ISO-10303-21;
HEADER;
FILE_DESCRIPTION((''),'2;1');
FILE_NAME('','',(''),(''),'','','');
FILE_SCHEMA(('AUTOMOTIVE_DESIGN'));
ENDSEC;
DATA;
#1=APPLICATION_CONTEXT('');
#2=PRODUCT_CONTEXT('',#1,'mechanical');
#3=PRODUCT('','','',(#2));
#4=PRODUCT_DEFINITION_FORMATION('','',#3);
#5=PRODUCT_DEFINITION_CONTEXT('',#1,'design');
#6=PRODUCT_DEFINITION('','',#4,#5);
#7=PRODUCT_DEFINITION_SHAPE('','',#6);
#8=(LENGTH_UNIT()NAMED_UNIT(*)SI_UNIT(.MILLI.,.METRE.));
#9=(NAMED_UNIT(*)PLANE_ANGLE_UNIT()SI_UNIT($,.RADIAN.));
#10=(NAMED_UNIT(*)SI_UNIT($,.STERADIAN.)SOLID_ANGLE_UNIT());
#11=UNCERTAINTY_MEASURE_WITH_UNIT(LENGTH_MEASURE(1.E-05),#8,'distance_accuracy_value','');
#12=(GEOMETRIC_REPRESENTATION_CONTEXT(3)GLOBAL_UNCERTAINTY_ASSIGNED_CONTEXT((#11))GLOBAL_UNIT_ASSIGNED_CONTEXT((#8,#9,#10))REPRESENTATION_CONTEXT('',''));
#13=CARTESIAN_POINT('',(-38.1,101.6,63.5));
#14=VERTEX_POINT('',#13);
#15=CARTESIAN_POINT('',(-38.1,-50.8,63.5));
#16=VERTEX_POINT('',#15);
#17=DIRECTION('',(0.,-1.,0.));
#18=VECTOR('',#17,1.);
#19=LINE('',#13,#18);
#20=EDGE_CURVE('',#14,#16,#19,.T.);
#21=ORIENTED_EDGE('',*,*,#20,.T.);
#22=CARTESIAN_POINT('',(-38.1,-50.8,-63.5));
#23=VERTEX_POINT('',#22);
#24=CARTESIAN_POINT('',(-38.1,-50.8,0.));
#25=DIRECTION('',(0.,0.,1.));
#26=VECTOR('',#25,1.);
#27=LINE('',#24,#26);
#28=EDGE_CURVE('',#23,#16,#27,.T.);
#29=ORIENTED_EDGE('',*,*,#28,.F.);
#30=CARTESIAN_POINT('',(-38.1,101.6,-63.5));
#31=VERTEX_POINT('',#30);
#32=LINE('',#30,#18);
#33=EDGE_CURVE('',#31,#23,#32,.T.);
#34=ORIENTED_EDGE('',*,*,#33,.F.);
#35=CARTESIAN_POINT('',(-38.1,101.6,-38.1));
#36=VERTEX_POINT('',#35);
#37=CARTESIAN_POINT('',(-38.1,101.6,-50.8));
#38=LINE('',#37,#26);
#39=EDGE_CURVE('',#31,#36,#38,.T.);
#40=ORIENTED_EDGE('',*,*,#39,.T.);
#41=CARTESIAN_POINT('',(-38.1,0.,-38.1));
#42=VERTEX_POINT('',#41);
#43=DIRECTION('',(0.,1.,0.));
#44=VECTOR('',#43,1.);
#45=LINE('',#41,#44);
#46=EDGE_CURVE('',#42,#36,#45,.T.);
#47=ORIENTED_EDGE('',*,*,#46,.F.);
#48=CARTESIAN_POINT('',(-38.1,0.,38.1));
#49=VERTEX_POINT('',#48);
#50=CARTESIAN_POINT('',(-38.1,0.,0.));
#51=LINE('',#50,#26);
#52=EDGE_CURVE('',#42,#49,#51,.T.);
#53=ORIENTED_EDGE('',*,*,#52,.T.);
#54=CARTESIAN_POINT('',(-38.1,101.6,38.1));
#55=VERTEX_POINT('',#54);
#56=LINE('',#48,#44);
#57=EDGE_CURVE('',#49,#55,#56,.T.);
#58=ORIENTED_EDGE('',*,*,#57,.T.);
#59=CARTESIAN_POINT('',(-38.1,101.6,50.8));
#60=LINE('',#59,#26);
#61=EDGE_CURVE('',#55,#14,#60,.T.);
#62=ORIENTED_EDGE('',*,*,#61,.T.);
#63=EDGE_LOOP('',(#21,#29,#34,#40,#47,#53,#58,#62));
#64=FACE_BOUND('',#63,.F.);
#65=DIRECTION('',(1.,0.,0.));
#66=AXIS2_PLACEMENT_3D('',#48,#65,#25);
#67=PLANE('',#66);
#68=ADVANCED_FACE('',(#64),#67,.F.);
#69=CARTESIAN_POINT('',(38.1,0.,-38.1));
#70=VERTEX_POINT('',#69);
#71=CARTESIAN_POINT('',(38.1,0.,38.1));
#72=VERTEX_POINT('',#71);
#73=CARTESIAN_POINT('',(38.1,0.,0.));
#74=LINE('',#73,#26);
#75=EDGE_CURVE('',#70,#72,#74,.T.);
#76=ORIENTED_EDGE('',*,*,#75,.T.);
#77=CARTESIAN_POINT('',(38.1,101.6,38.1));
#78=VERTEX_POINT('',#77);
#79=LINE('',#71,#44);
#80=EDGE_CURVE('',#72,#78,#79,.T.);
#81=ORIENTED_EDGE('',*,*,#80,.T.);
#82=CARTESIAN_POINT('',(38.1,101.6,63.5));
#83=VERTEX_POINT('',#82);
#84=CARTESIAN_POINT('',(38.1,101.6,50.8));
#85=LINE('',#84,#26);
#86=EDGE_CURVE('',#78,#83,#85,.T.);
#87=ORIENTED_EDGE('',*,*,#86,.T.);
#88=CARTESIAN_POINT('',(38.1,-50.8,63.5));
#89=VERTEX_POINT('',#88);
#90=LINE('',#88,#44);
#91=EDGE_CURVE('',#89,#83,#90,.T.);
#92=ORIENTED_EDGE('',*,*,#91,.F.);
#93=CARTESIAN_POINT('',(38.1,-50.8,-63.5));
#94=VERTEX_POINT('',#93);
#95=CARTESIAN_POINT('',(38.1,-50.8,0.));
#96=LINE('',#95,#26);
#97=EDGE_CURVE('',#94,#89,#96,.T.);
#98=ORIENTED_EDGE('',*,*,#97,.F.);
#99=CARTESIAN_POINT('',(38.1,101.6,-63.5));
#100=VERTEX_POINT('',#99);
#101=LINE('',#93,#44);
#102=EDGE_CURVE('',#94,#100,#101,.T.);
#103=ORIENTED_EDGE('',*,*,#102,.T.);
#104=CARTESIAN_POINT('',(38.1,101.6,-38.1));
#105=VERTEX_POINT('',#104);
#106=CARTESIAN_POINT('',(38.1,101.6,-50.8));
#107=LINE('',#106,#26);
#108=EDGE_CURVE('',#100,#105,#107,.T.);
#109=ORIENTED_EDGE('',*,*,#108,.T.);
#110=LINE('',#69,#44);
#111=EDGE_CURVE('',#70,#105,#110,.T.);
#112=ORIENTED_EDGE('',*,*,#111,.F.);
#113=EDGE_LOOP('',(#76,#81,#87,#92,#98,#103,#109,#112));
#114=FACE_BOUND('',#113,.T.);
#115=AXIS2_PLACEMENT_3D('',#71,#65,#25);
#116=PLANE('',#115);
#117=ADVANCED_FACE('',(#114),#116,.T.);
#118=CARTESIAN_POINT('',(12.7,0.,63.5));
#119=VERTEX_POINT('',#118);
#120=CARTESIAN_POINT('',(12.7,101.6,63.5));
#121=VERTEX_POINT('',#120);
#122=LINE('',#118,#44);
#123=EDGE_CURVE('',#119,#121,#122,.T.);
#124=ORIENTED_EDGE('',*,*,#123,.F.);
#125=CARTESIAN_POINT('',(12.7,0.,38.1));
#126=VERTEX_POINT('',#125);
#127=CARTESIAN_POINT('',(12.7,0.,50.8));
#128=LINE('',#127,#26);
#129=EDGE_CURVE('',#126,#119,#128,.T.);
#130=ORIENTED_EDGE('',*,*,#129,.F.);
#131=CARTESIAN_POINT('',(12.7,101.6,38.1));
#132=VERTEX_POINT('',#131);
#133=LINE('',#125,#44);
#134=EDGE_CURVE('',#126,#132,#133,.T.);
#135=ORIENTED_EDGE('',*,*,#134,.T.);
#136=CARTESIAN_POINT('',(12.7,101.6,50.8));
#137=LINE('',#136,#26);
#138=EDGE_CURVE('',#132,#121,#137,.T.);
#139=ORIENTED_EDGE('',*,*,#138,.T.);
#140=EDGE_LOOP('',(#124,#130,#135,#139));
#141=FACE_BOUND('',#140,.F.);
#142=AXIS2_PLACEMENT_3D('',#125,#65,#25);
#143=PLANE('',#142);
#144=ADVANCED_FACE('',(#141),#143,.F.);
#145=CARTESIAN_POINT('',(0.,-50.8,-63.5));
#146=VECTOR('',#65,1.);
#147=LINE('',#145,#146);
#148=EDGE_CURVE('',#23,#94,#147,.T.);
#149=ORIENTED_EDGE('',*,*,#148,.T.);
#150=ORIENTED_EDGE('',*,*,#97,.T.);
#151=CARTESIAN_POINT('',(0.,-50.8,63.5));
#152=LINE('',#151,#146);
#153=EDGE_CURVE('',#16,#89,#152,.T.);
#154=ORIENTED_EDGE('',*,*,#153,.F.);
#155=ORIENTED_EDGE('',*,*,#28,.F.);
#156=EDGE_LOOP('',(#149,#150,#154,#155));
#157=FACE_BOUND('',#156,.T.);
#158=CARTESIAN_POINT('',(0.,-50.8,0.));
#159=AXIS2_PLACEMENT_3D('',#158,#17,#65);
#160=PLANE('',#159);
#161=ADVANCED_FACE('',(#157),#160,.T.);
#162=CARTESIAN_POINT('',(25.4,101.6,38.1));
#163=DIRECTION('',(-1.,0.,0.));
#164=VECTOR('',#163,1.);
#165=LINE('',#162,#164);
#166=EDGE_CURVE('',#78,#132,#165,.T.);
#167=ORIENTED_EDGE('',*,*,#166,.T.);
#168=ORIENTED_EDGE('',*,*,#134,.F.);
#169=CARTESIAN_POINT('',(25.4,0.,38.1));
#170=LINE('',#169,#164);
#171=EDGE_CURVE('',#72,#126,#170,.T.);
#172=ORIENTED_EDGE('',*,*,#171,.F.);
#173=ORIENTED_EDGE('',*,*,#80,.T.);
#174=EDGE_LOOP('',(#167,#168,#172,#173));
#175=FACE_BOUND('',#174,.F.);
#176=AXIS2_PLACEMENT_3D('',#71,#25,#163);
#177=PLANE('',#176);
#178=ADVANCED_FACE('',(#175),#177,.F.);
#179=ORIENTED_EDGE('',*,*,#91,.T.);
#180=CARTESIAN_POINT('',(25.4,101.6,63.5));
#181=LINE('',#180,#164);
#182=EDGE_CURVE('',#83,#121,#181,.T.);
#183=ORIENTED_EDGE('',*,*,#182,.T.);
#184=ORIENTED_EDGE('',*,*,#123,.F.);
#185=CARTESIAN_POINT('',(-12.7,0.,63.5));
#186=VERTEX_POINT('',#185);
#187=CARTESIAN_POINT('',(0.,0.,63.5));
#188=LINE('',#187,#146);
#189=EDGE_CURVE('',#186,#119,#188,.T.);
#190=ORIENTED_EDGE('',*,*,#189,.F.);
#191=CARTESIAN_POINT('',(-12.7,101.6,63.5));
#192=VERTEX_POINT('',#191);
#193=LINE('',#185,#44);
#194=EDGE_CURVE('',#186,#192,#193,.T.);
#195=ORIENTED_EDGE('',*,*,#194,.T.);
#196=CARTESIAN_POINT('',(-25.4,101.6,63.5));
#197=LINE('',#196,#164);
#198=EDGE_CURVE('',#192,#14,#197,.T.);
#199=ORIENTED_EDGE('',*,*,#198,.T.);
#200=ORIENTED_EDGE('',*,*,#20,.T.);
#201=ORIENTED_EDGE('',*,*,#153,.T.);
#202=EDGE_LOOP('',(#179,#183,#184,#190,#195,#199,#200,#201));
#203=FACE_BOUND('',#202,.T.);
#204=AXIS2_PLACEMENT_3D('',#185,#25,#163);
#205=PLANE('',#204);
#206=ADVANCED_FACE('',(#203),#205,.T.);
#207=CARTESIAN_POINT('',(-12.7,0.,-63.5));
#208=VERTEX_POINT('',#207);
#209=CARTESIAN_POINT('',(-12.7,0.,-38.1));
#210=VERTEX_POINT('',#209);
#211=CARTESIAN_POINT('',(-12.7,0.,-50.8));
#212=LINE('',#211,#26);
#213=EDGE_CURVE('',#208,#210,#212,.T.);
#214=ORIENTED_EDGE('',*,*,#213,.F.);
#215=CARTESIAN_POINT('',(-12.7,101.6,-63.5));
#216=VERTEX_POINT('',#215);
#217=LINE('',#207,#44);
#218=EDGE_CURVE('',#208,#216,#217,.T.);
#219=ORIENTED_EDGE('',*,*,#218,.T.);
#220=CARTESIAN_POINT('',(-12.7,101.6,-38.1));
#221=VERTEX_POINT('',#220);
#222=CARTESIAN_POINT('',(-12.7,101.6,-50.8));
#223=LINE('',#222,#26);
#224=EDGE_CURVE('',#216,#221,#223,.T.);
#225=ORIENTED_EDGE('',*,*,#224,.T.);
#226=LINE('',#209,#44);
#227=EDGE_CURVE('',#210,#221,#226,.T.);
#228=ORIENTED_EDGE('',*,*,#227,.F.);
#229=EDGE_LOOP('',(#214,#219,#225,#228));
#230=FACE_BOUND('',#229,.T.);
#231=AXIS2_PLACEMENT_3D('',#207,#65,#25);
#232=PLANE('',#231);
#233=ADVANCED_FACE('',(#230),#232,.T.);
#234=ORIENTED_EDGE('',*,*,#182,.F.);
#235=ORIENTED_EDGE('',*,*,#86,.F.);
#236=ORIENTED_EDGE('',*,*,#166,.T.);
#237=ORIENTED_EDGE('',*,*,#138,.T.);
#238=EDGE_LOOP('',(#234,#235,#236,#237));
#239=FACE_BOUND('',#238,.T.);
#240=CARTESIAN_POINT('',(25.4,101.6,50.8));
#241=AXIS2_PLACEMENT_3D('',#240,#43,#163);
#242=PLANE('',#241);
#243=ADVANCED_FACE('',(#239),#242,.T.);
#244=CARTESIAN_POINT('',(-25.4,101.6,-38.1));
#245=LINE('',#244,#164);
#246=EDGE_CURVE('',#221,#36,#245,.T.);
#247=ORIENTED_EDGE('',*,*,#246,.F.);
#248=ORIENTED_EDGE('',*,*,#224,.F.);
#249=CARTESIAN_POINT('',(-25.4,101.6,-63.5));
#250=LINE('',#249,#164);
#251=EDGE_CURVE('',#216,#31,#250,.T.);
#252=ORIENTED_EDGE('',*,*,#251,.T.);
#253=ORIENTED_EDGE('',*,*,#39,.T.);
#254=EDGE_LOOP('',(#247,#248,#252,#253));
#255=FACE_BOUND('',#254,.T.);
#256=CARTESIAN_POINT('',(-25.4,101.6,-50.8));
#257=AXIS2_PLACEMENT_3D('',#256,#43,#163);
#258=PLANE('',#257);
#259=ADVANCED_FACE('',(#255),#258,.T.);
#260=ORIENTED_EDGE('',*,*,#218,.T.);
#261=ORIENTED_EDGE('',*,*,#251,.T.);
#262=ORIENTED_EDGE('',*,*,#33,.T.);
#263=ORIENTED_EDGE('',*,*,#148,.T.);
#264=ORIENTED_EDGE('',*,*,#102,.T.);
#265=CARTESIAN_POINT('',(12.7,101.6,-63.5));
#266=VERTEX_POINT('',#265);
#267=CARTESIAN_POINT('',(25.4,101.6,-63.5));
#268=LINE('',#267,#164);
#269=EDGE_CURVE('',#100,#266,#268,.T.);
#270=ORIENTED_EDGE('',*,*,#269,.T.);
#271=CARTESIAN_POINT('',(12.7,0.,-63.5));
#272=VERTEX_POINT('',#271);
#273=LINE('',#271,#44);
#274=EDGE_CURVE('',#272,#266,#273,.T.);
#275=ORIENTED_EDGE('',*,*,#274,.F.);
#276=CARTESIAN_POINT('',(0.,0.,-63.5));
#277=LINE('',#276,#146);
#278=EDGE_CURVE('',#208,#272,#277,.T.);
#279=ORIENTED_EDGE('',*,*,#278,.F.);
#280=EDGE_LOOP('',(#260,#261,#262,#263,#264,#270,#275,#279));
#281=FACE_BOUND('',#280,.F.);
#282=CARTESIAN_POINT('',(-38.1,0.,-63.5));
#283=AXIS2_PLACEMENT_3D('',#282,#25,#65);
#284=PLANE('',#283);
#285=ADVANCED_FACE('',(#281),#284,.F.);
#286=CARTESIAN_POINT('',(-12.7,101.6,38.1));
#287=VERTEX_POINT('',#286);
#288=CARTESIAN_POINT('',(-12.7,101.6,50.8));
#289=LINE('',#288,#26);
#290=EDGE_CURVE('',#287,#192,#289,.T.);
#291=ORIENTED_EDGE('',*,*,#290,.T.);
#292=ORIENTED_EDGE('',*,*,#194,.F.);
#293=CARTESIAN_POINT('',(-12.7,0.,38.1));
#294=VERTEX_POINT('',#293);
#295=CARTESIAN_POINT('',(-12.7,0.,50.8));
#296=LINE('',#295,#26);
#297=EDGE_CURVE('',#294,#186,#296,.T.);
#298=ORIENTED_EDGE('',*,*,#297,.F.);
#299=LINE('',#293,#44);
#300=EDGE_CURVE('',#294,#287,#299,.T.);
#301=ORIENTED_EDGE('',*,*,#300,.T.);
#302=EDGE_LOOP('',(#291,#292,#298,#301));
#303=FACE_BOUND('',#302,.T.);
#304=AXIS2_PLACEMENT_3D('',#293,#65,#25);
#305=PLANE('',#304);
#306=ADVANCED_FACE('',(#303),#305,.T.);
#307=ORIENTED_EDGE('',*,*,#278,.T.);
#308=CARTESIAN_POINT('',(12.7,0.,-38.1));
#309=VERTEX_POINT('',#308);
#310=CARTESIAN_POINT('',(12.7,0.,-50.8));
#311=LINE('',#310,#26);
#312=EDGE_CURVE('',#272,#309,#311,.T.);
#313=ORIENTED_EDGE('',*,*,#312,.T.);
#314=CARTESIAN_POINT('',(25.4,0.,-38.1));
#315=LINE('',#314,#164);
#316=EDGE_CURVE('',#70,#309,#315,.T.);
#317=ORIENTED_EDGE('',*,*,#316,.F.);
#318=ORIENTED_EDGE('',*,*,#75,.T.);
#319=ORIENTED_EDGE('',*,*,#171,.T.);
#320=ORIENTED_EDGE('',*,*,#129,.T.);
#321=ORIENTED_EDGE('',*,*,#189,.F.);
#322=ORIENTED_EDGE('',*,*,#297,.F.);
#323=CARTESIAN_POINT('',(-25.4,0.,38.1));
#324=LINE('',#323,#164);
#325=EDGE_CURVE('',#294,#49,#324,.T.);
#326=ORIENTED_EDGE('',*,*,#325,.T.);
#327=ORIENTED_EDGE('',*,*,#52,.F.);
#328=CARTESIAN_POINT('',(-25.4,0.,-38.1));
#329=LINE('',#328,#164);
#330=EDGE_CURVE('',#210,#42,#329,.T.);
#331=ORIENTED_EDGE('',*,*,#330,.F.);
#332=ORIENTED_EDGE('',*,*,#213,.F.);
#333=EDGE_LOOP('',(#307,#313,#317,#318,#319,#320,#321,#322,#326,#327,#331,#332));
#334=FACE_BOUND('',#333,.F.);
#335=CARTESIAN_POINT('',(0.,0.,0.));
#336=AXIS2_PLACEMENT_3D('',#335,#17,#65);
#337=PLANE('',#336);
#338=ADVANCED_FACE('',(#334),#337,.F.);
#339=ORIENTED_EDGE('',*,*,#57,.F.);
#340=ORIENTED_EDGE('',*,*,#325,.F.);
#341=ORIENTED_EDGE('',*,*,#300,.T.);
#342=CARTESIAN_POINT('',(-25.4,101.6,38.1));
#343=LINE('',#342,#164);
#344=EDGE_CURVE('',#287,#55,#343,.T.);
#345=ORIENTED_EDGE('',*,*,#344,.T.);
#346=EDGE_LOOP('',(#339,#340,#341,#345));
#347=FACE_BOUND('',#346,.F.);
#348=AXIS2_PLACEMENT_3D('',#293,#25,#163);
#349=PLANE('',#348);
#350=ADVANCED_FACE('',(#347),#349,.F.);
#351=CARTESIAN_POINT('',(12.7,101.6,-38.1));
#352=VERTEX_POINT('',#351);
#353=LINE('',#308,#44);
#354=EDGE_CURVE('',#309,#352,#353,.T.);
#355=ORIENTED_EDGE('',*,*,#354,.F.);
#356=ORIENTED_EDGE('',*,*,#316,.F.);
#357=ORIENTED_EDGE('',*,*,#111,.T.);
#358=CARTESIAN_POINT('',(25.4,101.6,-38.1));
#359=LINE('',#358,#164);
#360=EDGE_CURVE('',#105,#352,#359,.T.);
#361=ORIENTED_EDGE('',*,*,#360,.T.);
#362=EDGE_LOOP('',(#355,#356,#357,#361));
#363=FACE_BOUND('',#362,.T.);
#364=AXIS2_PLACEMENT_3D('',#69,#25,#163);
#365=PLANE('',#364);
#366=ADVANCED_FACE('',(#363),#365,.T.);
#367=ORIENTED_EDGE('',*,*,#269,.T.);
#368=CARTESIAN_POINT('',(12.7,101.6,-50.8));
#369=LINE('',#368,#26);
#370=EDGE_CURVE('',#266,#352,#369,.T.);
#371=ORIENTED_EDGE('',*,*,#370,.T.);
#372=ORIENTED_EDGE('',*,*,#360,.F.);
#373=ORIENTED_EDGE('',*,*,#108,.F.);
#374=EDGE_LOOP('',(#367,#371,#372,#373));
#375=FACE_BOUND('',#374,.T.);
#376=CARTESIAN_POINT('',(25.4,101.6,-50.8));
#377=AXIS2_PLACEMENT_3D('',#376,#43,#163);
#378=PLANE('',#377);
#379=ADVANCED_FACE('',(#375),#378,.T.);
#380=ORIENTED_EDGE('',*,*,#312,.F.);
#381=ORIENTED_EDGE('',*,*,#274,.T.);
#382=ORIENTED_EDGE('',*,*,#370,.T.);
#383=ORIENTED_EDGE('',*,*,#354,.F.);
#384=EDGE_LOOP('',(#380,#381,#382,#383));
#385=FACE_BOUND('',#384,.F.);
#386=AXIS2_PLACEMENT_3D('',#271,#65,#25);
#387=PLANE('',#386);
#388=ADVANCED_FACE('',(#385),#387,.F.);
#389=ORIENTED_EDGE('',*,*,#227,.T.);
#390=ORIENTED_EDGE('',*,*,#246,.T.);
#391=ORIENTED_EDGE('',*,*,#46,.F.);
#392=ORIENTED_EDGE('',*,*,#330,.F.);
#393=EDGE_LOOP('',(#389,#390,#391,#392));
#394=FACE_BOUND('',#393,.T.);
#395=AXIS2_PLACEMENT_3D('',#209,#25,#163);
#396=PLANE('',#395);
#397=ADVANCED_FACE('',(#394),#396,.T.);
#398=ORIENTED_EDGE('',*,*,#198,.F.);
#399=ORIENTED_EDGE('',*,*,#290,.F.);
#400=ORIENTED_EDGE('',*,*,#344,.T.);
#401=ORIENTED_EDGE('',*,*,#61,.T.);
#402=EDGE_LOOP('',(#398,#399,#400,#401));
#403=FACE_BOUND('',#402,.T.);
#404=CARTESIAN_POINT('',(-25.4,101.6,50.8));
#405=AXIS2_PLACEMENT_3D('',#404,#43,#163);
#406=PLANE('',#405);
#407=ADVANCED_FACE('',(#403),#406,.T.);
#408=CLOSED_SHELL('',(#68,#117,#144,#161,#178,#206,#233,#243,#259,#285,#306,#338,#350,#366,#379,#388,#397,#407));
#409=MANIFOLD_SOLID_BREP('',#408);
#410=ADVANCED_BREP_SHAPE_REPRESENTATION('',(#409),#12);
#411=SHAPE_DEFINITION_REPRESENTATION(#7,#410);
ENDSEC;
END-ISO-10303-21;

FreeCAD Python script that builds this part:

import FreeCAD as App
import Part
import Sketcher
Q = App.Units.Quantity

doc = App.newDocument("Part")
params = doc.addObject("Spreadsheet::Sheet", "Params")
for row, (alias, value) in enumerate([
    ("sketch1_width", "3 in"),
    ("sketch1_height", "5 in"),
    ("pad1_length", "2 in"),
    ("sketch2_width", "1 in"),
    ("pad2_length", "4 in"),
    ("sketch3_width", "1 in"),
    ("pad3_length", "4 in"),
], start=1):
    params.set(f"A{row}", alias)
    params.set(f"B{row}", "=" + value)
    params.setAlias(f"B{row}", alias)

body = doc.addObject("PartDesign::Body", "Body")

sketch1 = body.newObject("Sketcher::SketchObject", "Sketch")
sketch1.AttachmentSupport = (doc.getObject("XZ_Plane"), [""])
sketch1.MapMode = "FlatFace"
sketch1.addGeometry([
    Part.LineSegment(App.Vector(-38, 64, 0), App.Vector(-38, -64, 0)),
    Part.LineSegment(App.Vector(-38, -64, 0), App.Vector(38, -64, 0)),
    Part.LineSegment(App.Vector(38, -64, 0), App.Vector(38, 64, 0)),
    Part.LineSegment(App.Vector(38, 64, 0), App.Vector(-38, 64, 0)),
], False)
sketch1.addConstraint([
    Sketcher.Constraint("Coincident", 0, 2, 1, 1),
    Sketcher.Constraint("Coincident", 1, 2, 2, 1),
    Sketcher.Constraint("Coincident", 2, 2, 3, 1),
    Sketcher.Constraint("Coincident", 3, 2, 0, 1),
    Sketcher.Constraint("Vertical", 0),
    Sketcher.Constraint("Horizontal", 1),
    Sketcher.Constraint("Vertical", 2),
    Sketcher.Constraint("Horizontal", 3),
    Sketcher.Constraint("Symmetric", 0, 2, 2, 2, -1, 1),
    Sketcher.Constraint("DistanceX", 1, 1, 1, 2, Q("3 in")),
    Sketcher.Constraint("DistanceY", 0, 2, 0, 1, Q("5 in")),
])
sketch1.setExpression("Constraints[9]", "Params.sketch1_width")
sketch1.setExpression("Constraints[10]", "Params.sketch1_height")
pad1 = body.newObject("PartDesign::Pad", "Pad")
pad1.Profile = sketch1
pad1.setExpression("Length", "Params.pad1_length")

sketch2 = body.newObject("Sketcher::SketchObject", "Sketch001")
sketch2.AttachmentSupport = (doc.getObject("XZ_Plane"), [""])
sketch2.MapMode = "FlatFace"
sketch2.addGeometry([
    Part.LineSegment(App.Vector(38, 64, 0), App.Vector(38, 38, 0)),
    Part.LineSegment(App.Vector(38, 38, 0), App.Vector(13, 38, 0)),
    Part.LineSegment(App.Vector(13, 38, 0), App.Vector(13, 64, 0)),
    Part.LineSegment(App.Vector(13, 64, 0), App.Vector(38, 64, 0)),
], False)
sketch2.addConstraint([
    Sketcher.Constraint("Coincident", 0, 2, 1, 1),
    Sketcher.Constraint("Coincident", 1, 2, 2, 1),
    Sketcher.Constraint("Coincident", 2, 2, 3, 1),
    Sketcher.Constraint("Coincident", 3, 2, 0, 1),
    Sketcher.Constraint("Vertical", 0),
    Sketcher.Constraint("Horizontal", 1),
    Sketcher.Constraint("Vertical", 2),
    Sketcher.Constraint("Horizontal", 3),
    Sketcher.Constraint("Equal", 3, 0),
    Sketcher.Constraint("DistanceX", 1, 2, 1, 1, Q("1 in")),
    Sketcher.Constraint("DistanceX", -1, 1, 0, 2, Q("1.5 in")),
    Sketcher.Constraint("DistanceY", -1, 1, 0, 2, Q("1.5 in")),
])
sketch2.setExpression("Constraints[9]", "Params.sketch2_width")
pad2 = body.newObject("PartDesign::Pad", "Pad001")
pad2.Profile = sketch2
pad2.setExpression("Length", "Params.pad2_length")
pad2.Reversed = True

sketch3 = body.newObject("Sketcher::SketchObject", "Sketch002")
sketch3.AttachmentSupport = (doc.getObject("XZ_Plane"), [""])
sketch3.MapMode = "FlatFace"
sketch3.addGeometry([
    Part.LineSegment(App.Vector(-13, 64, 0), App.Vector(-13, 38, 0)),
    Part.LineSegment(App.Vector(-13, 38, 0), App.Vector(-38, 38, 0)),
    Part.LineSegment(App.Vector(-38, 38, 0), App.Vector(-38, 64, 0)),
    Part.LineSegment(App.Vector(-38, 64, 0), App.Vector(-13, 64, 0)),
    Part.LineSegment(App.Vector(38, 64, 0), App.Vector(38, 38, 0)),
    Part.LineSegment(App.Vector(38, 38, 0), App.Vector(13, 38, 0)),
    Part.LineSegment(App.Vector(13, 38, 0), App.Vector(13, 64, 0)),
    Part.LineSegment(App.Vector(13, 64, 0), App.Vector(38, 64, 0)),
    Part.LineSegment(App.Vector(-13, -38, 0), App.Vector(-13, -64, 0)),
    Part.LineSegment(App.Vector(-13, -64, 0), App.Vector(-38, -64, 0)),
    Part.LineSegment(App.Vector(-38, -64, 0), App.Vector(-38, -38, 0)),
    Part.LineSegment(App.Vector(-38, -38, 0), App.Vector(-13, -38, 0)),
    Part.LineSegment(App.Vector(38, -38, 0), App.Vector(38, -64, 0)),
    Part.LineSegment(App.Vector(38, -64, 0), App.Vector(13, -64, 0)),
    Part.LineSegment(App.Vector(13, -64, 0), App.Vector(13, -38, 0)),
    Part.LineSegment(App.Vector(13, -38, 0), App.Vector(38, -38, 0)),
], False)
sketch3.addConstraint([
    Sketcher.Constraint("Coincident", 0, 2, 1, 1),
    Sketcher.Constraint("Coincident", 1, 2, 2, 1),
    Sketcher.Constraint("Coincident", 2, 2, 3, 1),
    Sketcher.Constraint("Coincident", 3, 2, 0, 1),
    Sketcher.Constraint("Coincident", 4, 2, 5, 1),
    Sketcher.Constraint("Coincident", 5, 2, 6, 1),
    Sketcher.Constraint("Coincident", 6, 2, 7, 1),
    Sketcher.Constraint("Coincident", 7, 2, 4, 1),
    Sketcher.Constraint("Coincident", 8, 2, 9, 1),
    Sketcher.Constraint("Coincident", 9, 2, 10, 1),
    Sketcher.Constraint("Coincident", 10, 2, 11, 1),
    Sketcher.Constraint("Coincident", 11, 2, 8, 1),
    Sketcher.Constraint("Coincident", 12, 2, 13, 1),
    Sketcher.Constraint("Coincident", 13, 2, 14, 1),
    Sketcher.Constraint("Coincident", 14, 2, 15, 1),
    Sketcher.Constraint("Coincident", 15, 2, 12, 1),
    Sketcher.Constraint("Vertical", 0),
    Sketcher.Constraint("Horizontal", 1),
    Sketcher.Constraint("Vertical", 2),
    Sketcher.Constraint("Horizontal", 3),
    Sketcher.Constraint("Vertical", 4),
    Sketcher.Constraint("Horizontal", 5),
    Sketcher.Constraint("Vertical", 6),
    Sketcher.Constraint("Horizontal", 7),
    Sketcher.Constraint("Vertical", 8),
    Sketcher.Constraint("Horizontal", 9),
    Sketcher.Constraint("Vertical", 10),
    Sketcher.Constraint("Horizontal", 11),
    Sketcher.Constraint("Vertical", 12),
    Sketcher.Constraint("Horizontal", 13),
    Sketcher.Constraint("Vertical", 14),
    Sketcher.Constraint("Horizontal", 15),
    Sketcher.Constraint("Symmetric", 6, 2, 8, 2, -1, 1),
    Sketcher.Constraint("Symmetric", 4, 2, 10, 2, -1, 1),
    Sketcher.Constraint("Symmetric", 2, 2, 12, 2, -1, 1),
    Sketcher.Constraint("Symmetric", 0, 2, 14, 2, -1, 1),
    Sketcher.Constraint("Symmetric", 1, 2, 4, 2, -2),
    Sketcher.Constraint("Symmetric", 3, 2, 6, 2, -2),
    Sketcher.Constraint("Equal", 15, 0),
    Sketcher.Constraint("DistanceX", 1, 2, 1, 1, Q("1 in")),
    Sketcher.Constraint("DistanceX", 0, 2, 4, 2, Q("2 in")),
    Sketcher.Constraint("DistanceY", 8, 2, 0, 2, Q("4 in")),
])
sketch3.setExpression("Constraints[39]", "Params.sketch3_width")
pad3 = body.newObject("PartDesign::Pad", "Pad002")
pad3.Profile = sketch3
pad3.setExpression("Length", "Params.pad3_length")
pad3.Reversed = True

doc.recompute()
